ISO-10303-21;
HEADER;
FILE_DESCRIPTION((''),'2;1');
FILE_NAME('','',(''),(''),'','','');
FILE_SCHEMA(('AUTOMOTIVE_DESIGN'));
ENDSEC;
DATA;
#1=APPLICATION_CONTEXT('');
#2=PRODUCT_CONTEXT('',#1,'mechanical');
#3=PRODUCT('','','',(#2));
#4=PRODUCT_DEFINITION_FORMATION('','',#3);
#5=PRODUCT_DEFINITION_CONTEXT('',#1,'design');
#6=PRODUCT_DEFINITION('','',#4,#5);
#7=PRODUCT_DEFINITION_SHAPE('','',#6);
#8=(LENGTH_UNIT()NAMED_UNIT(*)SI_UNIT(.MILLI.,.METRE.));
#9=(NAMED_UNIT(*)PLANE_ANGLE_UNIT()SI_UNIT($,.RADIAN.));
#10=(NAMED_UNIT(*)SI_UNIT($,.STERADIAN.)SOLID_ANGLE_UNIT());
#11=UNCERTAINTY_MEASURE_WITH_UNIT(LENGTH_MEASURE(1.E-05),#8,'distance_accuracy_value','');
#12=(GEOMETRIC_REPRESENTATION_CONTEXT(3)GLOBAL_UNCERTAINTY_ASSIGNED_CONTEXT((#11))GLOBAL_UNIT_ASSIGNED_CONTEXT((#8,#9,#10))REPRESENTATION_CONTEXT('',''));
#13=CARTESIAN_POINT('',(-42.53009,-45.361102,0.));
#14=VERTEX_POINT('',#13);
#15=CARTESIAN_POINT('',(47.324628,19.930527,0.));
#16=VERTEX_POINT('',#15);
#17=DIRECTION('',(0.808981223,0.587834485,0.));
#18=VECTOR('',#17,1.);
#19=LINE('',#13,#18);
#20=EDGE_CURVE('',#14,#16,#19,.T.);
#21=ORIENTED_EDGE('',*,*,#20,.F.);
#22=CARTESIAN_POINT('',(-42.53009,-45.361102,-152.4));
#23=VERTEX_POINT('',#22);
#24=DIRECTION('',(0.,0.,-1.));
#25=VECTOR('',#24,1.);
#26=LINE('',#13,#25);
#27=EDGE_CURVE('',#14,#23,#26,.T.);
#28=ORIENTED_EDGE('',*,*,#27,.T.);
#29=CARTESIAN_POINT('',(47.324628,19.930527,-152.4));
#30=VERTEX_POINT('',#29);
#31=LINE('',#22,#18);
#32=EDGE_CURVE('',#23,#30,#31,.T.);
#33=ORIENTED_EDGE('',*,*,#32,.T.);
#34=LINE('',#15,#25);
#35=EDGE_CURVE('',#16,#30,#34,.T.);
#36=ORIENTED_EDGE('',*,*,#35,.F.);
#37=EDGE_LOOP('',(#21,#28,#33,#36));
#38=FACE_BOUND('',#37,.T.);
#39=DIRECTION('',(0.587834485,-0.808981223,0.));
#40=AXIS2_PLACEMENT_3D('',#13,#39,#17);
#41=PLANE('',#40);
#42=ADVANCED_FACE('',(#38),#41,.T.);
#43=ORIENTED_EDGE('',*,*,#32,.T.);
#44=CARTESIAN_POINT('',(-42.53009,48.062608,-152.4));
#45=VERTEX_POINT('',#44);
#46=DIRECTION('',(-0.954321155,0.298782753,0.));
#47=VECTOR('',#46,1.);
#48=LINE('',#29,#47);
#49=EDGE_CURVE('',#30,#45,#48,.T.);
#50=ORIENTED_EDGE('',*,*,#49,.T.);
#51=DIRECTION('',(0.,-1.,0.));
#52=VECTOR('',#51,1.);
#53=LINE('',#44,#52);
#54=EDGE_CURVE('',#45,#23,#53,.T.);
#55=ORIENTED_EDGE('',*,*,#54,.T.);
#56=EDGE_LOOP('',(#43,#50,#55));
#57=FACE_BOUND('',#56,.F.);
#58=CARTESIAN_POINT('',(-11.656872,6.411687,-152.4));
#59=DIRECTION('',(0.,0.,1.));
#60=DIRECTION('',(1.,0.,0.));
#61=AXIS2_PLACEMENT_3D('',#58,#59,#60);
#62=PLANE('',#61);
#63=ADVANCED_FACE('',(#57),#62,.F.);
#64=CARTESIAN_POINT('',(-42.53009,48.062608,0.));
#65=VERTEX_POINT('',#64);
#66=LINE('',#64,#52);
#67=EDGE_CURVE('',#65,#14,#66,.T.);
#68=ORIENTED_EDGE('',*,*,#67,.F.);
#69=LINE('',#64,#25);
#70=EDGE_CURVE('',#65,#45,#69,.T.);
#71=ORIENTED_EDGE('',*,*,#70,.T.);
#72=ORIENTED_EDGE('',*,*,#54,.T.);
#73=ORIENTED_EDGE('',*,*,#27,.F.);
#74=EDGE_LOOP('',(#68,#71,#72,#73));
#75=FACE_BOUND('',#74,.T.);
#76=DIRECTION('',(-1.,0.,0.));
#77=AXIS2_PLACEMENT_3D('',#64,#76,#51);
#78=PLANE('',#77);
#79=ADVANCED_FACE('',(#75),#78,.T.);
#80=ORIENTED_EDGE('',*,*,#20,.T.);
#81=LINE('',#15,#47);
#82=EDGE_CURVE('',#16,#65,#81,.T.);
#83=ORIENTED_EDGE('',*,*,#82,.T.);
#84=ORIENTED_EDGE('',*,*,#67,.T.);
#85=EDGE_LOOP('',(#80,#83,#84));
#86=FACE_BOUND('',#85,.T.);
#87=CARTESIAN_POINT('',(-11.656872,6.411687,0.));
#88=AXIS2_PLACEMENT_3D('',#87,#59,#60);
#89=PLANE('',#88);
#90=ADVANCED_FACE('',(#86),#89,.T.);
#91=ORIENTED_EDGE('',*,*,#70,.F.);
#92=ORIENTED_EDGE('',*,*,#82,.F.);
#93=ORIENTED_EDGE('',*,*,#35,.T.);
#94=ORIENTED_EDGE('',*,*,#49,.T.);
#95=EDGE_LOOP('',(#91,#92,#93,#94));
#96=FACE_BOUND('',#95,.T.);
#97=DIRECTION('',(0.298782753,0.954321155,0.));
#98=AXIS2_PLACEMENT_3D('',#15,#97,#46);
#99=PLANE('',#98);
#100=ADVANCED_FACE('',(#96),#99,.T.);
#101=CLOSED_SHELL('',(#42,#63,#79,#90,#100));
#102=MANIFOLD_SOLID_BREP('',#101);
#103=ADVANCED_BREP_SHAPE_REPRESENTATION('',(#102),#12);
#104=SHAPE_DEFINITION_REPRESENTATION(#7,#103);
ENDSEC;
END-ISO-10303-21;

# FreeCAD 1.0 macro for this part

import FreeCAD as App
import Part
import Sketcher
Q = App.Units.Quantity

doc = App.newDocument("Part")
body = doc.addObject("PartDesign::Body", "Body")

# Sketch on XY plane
sketch1 = body.newObject("Sketcher::SketchObject", "Sketch")
sketch1.AttachmentSupport = (doc.getObject("XY_Plane"), [""])
sketch1.MapMode = "FlatFace"
sketch1.addGeometry([
    Part.LineSegment(App.Vector(-43, 48, 0), App.Vector(-43, -45, 0)),
    Part.LineSegment(App.Vector(-43, -45, 0), App.Vector(47, 20, 0)),
    Part.LineSegment(App.Vector(47, 20, 0), App.Vector(-43, 48, 0)),
], False)
sketch1.addConstraint([
    Sketcher.Constraint("Coincident", 0, 2, 1, 1),
    Sketcher.Constraint("Coincident", 1, 2, 2, 1),
    Sketcher.Constraint("Coincident", 2, 2, 0, 1),
    Sketcher.Constraint("Vertical", 0),
    Sketcher.Constraint("DistanceY", 0, 2, 0, 1, 93.42371),
    Sketcher.Constraint("Distance", 1, 111.071451),
    Sketcher.Constraint("Distance", 2, 94.155639),
    Sketcher.Constraint("DistanceX", 0, 2, -1, 1, 42.53009),
    Sketcher.Constraint("DistanceY", 0, 2, -1, 1, 45.361102),
])
pad1 = body.newObject("PartDesign::Pad", "Pad")
pad1.Profile = sketch1
pad1.Length = Q("6 in")
pad1.Reversed = True

doc.recompute()
